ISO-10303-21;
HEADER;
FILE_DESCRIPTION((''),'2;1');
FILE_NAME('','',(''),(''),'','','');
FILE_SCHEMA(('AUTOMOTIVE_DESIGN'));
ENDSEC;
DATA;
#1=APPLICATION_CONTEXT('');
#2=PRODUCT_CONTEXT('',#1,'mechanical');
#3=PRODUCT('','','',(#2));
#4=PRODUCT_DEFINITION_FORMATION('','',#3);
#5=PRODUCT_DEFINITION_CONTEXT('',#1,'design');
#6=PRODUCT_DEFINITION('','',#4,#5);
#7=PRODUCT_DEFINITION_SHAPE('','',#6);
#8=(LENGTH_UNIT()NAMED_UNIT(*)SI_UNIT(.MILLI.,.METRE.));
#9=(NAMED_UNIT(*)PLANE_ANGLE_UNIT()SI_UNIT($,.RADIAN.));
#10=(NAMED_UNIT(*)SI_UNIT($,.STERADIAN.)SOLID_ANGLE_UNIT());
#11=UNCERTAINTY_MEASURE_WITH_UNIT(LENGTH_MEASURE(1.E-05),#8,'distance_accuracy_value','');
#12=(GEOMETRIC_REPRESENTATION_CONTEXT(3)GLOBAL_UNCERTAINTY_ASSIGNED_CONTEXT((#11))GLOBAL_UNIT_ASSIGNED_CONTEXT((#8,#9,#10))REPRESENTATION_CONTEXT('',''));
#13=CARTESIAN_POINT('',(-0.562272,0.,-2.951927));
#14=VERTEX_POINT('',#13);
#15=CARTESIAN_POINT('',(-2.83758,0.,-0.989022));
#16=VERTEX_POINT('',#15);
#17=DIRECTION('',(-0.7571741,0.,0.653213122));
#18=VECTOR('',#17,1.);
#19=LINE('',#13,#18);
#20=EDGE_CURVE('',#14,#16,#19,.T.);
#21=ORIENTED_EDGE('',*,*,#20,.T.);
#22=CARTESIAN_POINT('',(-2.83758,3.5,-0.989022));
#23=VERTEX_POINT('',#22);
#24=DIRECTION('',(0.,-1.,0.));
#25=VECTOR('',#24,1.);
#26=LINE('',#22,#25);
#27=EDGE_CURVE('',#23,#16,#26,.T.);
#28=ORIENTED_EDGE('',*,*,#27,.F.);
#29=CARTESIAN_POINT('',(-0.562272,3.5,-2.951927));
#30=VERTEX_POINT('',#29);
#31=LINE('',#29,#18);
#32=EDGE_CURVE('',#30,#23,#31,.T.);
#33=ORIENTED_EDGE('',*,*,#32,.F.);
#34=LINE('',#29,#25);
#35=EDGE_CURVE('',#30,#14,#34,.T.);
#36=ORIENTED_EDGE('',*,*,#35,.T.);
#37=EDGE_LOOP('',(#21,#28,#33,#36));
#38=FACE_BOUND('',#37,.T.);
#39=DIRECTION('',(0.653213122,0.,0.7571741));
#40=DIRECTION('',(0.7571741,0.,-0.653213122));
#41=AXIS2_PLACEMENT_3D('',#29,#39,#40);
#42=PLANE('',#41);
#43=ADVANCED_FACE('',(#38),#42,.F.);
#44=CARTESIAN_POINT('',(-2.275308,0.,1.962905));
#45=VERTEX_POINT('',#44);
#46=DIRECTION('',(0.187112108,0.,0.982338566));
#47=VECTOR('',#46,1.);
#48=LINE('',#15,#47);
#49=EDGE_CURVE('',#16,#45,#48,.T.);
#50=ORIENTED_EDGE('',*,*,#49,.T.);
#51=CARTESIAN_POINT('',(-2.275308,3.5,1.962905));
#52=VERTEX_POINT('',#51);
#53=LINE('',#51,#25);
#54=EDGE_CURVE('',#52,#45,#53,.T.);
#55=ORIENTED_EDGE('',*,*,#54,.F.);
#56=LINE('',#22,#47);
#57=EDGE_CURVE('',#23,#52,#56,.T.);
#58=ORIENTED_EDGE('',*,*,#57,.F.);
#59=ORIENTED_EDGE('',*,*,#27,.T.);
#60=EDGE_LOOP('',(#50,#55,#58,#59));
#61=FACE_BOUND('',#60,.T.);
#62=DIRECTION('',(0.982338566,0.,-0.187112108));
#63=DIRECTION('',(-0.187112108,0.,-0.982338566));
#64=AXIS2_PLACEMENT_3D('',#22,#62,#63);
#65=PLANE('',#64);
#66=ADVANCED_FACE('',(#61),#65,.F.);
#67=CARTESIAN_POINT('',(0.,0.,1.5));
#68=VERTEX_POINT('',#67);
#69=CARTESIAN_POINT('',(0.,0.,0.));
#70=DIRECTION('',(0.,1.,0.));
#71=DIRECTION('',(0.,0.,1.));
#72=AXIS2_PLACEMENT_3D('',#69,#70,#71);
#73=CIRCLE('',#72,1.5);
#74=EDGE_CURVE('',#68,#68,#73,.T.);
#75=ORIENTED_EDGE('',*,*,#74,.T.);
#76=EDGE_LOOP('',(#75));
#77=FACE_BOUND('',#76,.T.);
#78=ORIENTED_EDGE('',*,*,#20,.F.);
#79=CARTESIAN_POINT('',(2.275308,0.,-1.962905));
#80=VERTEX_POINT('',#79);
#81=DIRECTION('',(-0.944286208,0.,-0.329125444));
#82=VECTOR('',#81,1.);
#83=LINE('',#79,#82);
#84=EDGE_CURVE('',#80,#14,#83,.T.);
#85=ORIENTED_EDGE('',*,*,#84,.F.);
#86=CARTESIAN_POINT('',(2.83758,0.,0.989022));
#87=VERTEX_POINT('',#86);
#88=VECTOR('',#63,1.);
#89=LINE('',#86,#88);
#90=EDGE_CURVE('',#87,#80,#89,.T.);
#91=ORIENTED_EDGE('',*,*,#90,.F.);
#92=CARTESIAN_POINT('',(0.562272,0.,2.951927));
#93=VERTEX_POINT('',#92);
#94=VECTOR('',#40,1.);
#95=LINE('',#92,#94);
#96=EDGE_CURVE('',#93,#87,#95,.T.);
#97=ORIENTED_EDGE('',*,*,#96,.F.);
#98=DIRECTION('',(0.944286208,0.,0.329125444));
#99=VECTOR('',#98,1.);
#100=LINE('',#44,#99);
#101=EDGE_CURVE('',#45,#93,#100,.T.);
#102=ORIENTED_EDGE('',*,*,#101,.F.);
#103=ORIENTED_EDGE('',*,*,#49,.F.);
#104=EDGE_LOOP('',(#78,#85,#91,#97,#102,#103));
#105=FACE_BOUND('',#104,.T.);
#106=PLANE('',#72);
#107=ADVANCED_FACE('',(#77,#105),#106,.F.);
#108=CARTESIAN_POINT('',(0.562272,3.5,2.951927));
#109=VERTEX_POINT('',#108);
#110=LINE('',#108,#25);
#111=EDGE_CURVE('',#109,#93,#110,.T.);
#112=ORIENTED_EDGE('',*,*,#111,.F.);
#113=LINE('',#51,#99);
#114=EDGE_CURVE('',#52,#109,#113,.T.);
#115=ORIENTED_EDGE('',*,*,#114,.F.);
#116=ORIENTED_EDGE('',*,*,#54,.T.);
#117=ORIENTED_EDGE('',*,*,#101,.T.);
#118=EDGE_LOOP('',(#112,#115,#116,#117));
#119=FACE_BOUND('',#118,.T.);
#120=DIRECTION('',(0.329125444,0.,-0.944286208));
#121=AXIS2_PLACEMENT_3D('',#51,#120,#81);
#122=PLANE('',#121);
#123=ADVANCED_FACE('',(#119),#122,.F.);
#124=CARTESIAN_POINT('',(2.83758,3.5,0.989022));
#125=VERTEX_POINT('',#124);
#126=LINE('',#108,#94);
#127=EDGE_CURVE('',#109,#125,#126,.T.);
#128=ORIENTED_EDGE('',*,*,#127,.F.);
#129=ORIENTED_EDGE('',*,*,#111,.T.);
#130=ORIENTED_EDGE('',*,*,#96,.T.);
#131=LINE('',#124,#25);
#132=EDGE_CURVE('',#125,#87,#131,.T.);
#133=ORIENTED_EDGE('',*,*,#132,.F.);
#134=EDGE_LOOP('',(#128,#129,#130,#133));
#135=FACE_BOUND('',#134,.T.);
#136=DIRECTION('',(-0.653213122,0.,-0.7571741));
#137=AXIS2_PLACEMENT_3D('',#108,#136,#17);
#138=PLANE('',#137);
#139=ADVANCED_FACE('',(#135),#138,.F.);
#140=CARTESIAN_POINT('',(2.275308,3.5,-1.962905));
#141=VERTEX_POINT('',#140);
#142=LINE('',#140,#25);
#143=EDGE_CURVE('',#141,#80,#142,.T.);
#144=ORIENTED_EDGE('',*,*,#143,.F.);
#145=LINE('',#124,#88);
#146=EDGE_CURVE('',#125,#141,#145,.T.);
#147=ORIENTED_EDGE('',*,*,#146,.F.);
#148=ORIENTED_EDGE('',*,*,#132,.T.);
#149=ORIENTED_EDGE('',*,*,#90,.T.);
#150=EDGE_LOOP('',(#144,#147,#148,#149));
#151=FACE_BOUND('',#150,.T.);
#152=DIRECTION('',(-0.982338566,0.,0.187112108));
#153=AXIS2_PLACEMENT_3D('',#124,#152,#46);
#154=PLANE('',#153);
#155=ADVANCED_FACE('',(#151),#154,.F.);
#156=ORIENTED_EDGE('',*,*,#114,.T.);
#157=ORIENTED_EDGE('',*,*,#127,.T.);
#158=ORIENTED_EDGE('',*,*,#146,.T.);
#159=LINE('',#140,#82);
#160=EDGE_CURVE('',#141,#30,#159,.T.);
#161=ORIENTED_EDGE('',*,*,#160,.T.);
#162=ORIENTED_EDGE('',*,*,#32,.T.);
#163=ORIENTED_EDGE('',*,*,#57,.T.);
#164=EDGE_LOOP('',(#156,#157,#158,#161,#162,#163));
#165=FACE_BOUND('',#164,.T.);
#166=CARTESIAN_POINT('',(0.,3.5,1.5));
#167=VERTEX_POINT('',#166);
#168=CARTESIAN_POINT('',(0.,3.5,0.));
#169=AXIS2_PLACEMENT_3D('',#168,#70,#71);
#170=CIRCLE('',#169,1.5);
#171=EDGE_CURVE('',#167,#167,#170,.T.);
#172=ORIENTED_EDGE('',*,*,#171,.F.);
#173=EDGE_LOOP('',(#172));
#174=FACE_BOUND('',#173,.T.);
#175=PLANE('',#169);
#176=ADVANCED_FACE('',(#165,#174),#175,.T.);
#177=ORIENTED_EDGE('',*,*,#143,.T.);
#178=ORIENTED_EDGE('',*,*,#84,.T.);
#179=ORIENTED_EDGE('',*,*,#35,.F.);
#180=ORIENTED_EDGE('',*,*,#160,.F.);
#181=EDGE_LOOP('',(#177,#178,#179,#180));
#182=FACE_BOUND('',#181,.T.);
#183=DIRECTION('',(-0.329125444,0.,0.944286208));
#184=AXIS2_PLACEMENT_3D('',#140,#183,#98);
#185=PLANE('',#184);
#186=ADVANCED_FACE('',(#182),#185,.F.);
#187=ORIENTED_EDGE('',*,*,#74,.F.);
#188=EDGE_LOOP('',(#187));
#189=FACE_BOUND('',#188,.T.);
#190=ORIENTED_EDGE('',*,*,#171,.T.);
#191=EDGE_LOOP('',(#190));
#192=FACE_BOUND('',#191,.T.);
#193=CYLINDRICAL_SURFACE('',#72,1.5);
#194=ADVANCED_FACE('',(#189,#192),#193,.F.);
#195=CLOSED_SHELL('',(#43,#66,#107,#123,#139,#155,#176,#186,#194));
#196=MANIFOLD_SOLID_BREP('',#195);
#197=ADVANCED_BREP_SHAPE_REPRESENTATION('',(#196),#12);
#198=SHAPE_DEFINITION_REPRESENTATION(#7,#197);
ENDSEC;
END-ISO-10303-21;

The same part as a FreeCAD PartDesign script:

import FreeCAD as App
import Part
import Sketcher
from FreeCAD import Vector
Q = App.Units.Quantity


def add_polygon(sketch, points):
    """Adds a closed chain of lines whose ends are joined by coincident constraints."""
    first, n = sketch.GeometryCount, len(points)
    for a, b in zip(points, points[1:] + points[:1]):
        sketch.addGeometry(Part.LineSegment(App.Vector(*a, 0), App.Vector(*b, 0)), False)
    for i in range(n):
        sketch.addConstraint(Sketcher.Constraint("Coincident", first + i, 2, first + (i + 1) % n, 1))

doc = App.newDocument("Part")
body = doc.addObject("PartDesign::Body", "Body")

# Sketch on XZ plane
sketch1 = doc.addObject("Sketcher::SketchObject", "Sketch")
body.addObject(sketch1)
sketch1.AttachmentSupport = (doc.XZ_Plane, [""])
sketch1.MapMode = "FlatFace"
add_polygon(sketch1, [(0.6, 3), (2.8, 1), (2.3, -2), (-0.6, -3), (-2.8, -1), (-2.3, 2)])  # lines 0-5
sketch1.addConstraint([
    Sketcher.Constraint("Symmetric", 0, 2, 3, 2, -1, 1),
    Sketcher.Constraint("Symmetric", 1, 2, 4, 2, -1, 1),
    Sketcher.Constraint("Symmetric", 2, 2, 5, 2, -1, 1),
    Sketcher.Constraint("Equal", 0, 1),
    Sketcher.Constraint("Equal", 1, 2),
    Sketcher.Constraint("Distance", 0, Q("3.005 mm")),
    Sketcher.Constraint("DistanceX", -1, 1, 0, 2, Q("2.83758 mm")),
    Sketcher.Constraint("DistanceY", -1, 1, 0, 2, Q("0.989022 mm")),
    Sketcher.Constraint("DistanceX", -1, 1, 1, 2, Q("2.275308 mm")),
])
pad1 = doc.addObject("PartDesign::Pad", "Pad")
body.addObject(pad1)
pad1.Profile = sketch1
pad1.Length = 3.5
pad1.Reversed = True

# Sketch on XZ plane
sketch2 = doc.addObject("Sketcher::SketchObject", "Sketch001")
body.addObject(sketch2)
sketch2.AttachmentSupport = (doc.XZ_Plane, [""])
sketch2.MapMode = "FlatFace"
sketch2.AttachmentOffset = App.Placement(Vector(0, 0, -3.5), App.Rotation())
sketch2.addGeometry(Part.Circle(Vector(0, 0, 0), Vector(0, 0, 1), 1.5), False)
sketch2.addConstraint([
    Sketcher.Constraint("Coincident", 0, 3, -1, 1),
    Sketcher.Constraint("Diameter", 0, Q("3 mm")),
])
pocket1 = doc.addObject("PartDesign::Pocket", "Pocket")
body.addObject(pocket1)
pocket1.Profile = sketch2
pocket1.Type = "ThroughAll"
pocket1.Reversed = True

doc.recompute()
